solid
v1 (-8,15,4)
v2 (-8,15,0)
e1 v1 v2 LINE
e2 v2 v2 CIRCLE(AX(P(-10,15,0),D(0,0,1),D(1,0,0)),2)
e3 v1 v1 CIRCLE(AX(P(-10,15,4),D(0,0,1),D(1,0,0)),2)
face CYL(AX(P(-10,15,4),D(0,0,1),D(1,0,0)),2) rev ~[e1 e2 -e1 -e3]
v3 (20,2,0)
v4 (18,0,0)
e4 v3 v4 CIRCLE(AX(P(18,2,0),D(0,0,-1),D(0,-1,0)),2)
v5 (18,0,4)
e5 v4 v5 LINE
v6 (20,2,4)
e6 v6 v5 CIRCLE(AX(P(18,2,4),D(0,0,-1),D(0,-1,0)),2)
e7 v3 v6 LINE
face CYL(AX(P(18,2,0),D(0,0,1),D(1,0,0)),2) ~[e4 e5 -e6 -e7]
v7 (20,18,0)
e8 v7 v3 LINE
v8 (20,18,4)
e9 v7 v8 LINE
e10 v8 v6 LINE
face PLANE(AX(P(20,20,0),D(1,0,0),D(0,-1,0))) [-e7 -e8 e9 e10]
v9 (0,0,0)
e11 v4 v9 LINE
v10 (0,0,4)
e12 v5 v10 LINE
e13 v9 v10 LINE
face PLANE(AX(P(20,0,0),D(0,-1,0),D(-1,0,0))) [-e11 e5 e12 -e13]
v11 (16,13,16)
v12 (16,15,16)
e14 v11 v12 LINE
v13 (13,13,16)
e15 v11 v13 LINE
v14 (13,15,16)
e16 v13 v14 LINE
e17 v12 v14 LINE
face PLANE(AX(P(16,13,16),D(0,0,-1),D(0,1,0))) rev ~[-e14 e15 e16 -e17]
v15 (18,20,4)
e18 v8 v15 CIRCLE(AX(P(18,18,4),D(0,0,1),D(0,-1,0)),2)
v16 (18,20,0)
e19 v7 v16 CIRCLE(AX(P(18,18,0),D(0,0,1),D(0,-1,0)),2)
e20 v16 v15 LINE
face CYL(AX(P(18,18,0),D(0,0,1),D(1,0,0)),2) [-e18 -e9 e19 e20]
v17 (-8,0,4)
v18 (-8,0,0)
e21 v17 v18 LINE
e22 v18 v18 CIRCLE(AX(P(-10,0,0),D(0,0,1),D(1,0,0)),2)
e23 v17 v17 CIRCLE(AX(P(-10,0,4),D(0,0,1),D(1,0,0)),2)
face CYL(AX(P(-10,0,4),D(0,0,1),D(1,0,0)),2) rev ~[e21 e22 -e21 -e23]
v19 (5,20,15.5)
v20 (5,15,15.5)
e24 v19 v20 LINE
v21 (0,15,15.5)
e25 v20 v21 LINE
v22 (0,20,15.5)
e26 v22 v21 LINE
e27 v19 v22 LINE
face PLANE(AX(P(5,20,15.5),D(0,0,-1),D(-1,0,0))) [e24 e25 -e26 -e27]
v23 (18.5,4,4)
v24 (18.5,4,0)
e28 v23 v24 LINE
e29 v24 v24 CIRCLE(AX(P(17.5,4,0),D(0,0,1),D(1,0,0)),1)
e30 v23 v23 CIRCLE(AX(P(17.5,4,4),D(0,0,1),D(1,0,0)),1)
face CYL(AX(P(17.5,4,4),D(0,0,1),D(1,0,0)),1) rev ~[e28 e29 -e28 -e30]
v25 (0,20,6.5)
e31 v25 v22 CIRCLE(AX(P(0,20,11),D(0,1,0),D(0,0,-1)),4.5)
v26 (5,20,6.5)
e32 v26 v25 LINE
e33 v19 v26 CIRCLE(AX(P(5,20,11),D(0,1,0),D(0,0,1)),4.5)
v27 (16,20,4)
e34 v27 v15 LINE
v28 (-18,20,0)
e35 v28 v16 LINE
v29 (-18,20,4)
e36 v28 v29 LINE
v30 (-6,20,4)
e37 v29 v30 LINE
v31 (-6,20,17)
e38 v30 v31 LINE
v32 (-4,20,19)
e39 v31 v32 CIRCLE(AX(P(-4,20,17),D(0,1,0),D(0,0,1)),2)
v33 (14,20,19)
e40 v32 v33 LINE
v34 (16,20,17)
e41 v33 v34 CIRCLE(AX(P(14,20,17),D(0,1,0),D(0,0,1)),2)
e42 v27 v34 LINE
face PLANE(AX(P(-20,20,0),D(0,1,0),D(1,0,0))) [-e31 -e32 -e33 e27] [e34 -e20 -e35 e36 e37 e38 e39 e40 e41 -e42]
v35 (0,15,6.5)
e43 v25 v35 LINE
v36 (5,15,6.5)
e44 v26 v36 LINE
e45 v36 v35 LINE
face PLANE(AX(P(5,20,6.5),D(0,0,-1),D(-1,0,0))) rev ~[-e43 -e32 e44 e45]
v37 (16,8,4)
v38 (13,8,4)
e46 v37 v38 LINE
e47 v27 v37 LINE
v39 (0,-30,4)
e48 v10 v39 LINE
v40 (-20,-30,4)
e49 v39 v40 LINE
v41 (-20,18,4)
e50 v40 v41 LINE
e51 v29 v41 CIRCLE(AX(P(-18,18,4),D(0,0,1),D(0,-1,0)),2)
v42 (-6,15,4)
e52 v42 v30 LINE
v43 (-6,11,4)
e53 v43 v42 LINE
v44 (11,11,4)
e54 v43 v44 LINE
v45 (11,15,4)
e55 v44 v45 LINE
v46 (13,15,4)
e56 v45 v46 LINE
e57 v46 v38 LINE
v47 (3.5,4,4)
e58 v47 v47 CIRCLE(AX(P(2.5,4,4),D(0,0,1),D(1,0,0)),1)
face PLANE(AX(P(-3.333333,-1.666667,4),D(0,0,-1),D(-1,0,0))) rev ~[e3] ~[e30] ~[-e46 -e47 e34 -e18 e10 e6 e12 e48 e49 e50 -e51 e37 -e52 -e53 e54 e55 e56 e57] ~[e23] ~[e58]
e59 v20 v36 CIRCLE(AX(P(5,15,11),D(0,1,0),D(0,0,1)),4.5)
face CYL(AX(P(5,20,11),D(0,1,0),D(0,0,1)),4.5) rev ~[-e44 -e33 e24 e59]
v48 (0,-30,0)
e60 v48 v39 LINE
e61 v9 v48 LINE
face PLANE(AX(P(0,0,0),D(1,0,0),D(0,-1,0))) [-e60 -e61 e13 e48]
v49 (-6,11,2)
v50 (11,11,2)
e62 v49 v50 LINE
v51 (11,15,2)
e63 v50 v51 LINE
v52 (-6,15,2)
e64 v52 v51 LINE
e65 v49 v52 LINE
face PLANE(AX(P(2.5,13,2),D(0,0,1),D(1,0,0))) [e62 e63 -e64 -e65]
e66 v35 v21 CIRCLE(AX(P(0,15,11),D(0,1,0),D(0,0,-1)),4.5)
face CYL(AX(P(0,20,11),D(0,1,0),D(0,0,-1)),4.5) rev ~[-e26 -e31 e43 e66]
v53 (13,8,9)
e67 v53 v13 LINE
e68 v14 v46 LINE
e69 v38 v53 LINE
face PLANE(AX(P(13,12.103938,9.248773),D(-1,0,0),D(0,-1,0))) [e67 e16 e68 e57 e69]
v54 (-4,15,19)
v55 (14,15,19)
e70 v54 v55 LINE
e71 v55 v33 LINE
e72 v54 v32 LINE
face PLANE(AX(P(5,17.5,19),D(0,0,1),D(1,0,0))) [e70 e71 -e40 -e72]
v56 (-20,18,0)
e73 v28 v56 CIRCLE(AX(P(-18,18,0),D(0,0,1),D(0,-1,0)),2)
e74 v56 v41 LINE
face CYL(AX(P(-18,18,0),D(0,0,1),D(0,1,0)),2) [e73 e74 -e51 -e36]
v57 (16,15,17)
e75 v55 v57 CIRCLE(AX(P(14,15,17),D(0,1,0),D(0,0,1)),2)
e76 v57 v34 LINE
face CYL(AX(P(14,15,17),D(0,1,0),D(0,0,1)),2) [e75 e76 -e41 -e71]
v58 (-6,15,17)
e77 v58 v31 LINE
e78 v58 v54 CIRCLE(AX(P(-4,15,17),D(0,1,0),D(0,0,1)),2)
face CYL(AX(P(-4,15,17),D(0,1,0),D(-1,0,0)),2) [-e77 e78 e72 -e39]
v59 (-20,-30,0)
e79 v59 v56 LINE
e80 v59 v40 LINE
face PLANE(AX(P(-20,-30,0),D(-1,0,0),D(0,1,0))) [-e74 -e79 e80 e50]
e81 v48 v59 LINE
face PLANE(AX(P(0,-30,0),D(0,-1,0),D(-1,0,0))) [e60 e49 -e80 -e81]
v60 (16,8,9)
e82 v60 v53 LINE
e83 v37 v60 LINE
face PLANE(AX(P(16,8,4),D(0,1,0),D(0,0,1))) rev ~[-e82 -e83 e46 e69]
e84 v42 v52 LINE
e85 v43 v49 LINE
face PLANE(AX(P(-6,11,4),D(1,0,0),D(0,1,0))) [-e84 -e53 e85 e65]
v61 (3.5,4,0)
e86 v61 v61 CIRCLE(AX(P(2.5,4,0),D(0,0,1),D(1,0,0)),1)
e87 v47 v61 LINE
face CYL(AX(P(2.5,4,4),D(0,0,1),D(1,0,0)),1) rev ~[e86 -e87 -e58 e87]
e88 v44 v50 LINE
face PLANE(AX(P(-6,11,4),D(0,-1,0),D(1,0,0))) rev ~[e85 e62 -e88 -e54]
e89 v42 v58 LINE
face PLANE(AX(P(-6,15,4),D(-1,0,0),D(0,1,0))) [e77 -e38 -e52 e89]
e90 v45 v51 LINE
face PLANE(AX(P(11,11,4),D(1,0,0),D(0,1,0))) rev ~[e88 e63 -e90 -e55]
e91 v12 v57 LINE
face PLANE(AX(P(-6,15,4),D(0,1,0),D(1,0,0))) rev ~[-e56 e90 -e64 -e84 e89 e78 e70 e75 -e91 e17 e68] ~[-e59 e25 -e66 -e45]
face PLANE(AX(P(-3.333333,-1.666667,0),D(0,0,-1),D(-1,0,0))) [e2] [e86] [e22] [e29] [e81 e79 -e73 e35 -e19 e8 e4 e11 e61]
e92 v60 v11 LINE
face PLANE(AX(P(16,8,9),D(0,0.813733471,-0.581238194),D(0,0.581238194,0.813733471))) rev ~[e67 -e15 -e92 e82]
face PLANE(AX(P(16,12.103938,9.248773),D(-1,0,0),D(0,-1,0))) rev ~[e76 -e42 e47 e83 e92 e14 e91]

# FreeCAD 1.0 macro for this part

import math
import FreeCAD as App
import Part
import Sketcher
Q = App.Units.Quantity


def edges_at(feature, points):
    """Names of the edges that pass closest to the given points."""
    edges = feature.Shape.Edges
    near = lambda p: min(range(len(edges)), key=lambda i: edges[i].distToShape(Part.Vertex(*p))[0])
    return sorted({f"Edge{near(p) + 1}" for p in points})


def add_polygon(sketch, points):
    """Adds a closed chain of lines whose ends are joined by coincident constraints."""
    first, n = sketch.GeometryCount, len(points)
    for a, b in zip(points, points[1:] + points[:1]):
        sketch.addGeometry(Part.LineSegment(App.Vector(*a, 0), App.Vector(*b, 0)), False)
    for i in range(n):
        sketch.addConstraint(Sketcher.Constraint("Coincident", first + i, 2, first + (i + 1) % n, 1))

doc = App.newDocument("Part")
body = doc.addObject("PartDesign::Body", "Body")

# Sketch on XY plane
sketch1 = doc.addObject("Sketcher::SketchObject", "Sketch")
body.addObject(sketch1)
sketch1.AttachmentSupport = (doc.XY_Plane, [""])
sketch1.MapMode = "FlatFace"
add_polygon(sketch1, [(20, 20), (-20, 20), (-20, -30), (0, -30), (0, 0), (20, 0)])  # lines 0-5
sketch1.addConstraint(Sketcher.Constraint("Horizontal", 0))
sketch1.addConstraint(Sketcher.Constraint("Vertical", 1))
sketch1.addConstraint(Sketcher.Constraint("Horizontal", 2))
sketch1.addConstraint(Sketcher.Constraint("Vertical", 3))
sketch1.addConstraint(Sketcher.Constraint("Horizontal", 4))
sketch1.addConstraint(Sketcher.Constraint("Vertical", 5))
sketch1.addConstraint(Sketcher.Constraint("Coincident", 3, 2, -1, 1))
sketch1.addConstraint(Sketcher.Constraint("Equal", 2, 4))
sketch1.addConstraint(Sketcher.Constraint("Equal", 4, 5))
sketch1.addConstraint(Sketcher.Constraint("DistanceX", 0, 2, 0, 1, Q("40 mm")))
sketch1.addConstraint(Sketcher.Constraint("DistanceY", 1, 2, 1, 1, Q("50 mm")))
pad1 = doc.addObject("PartDesign::Pad", "Pad")
body.addObject(pad1)
pad1.Profile = sketch1
pad1.Length = 4

# Sketch on XY plane
sketch2 = doc.addObject("Sketcher::SketchObject", "Sketch001")
body.addObject(sketch2)
sketch2.AttachmentSupport = (doc.XY_Plane, [""])
sketch2.MapMode = "FlatFace"
sketch2.AttachmentOffset = App.Placement(App.Vector(0, 0, 4), App.Rotation())
sketch2.addGeometry(Part.Circle(App.Vector(-10, 15, 0), App.Vector(0, 0, 1), 2), False)
sketch2.addConstraint(Sketcher.Constraint("Diameter", 0, Q("4 mm")))
sketch2.addConstraint(Sketcher.Constraint("DistanceX", 0, 3, -1, 1, Q("10 mm")))
sketch2.addConstraint(Sketcher.Constraint("DistanceY", -1, 1, 0, 3, Q("15 mm")))
pocket1 = doc.addObject("PartDesign::Pocket", "Pocket")
body.addObject(pocket1)
pocket1.Profile = sketch2
pocket1.Type = "ThroughAll"

# Sketch on XY plane
sketch3 = doc.addObject("Sketcher::SketchObject", "Sketch002")
body.addObject(sketch3)
sketch3.AttachmentSupport = (doc.XY_Plane, [""])
sketch3.MapMode = "FlatFace"
sketch3.AttachmentOffset = App.Placement(App.Vector(0, 0, 4), App.Rotation())
sketch3.addGeometry(Part.Circle(App.Vector(-10, 0, 0), App.Vector(0, 0, 1), 2), False)
sketch3.addConstraint(Sketcher.Constraint("PointOnObject", 0, 3, -1))
sketch3.addConstraint(Sketcher.Constraint("Diameter", 0, Q("4 mm")))
sketch3.addConstraint(Sketcher.Constraint("DistanceX", 0, 3, -1, 1, Q("10 mm")))
pocket2 = doc.addObject("PartDesign::Pocket", "Pocket001")
body.addObject(pocket2)
pocket2.Profile = sketch3
pocket2.Type = "ThroughAll"

# Sketch on XY plane
sketch4 = doc.addObject("Sketcher::SketchObject", "Sketch003")
body.addObject(sketch4)
sketch4.AttachmentSupport = (doc.XY_Plane, [""])
sketch4.MapMode = "FlatFace"
sketch4.AttachmentOffset = App.Placement(App.Vector(0, 0, 4), App.Rotation())
sketch4.addGeometry(Part.Circle(App.Vector(2.5, 4, 0), App.Vector(0, 0, 1), 1), False)
sketch4.addConstraint(Sketcher.Constraint("Diameter", 0, Q("2 mm")))
sketch4.addConstraint(Sketcher.Constraint("DistanceY", -1, 1, 0, 3, Q("4 mm")))
sketch4.addConstraint(Sketcher.Constraint("DistanceX", -1, 1, 0, 3, Q("2.5 mm")))
pocket3 = doc.addObject("PartDesign::Pocket", "Pocket002")
body.addObject(pocket3)
pocket3.Profile = sketch4
pocket3.Type = "ThroughAll"

# Sketch on XY plane
sketch5 = doc.addObject("Sketcher::SketchObject", "Sketch004")
body.addObject(sketch5)
sketch5.AttachmentSupport = (doc.XY_Plane, [""])
sketch5.MapMode = "FlatFace"
sketch5.AttachmentOffset = App.Placement(App.Vector(0, 0, 4), App.Rotation())
sketch5.addGeometry(Part.Circle(App.Vector(17.5, 4, 0), App.Vector(0, 0, 1), 1), False)
sketch5.addConstraint(Sketcher.Constraint("Diameter", 0, Q("2 mm")))
sketch5.addConstraint(Sketcher.Constraint("DistanceY", -1, 1, 0, 3, Q("4 mm")))
sketch5.addConstraint(Sketcher.Constraint("DistanceX", -1, 1, 0, 3, Q("17.5 mm")))
pocket4 = doc.addObject("PartDesign::Pocket", "Pocket003")
body.addObject(pocket4)
pocket4.Profile = sketch5
pocket4.Type = "ThroughAll"

# Sketch on XY plane
sketch6 = doc.addObject("Sketcher::SketchObject", "Sketch005")
body.addObject(sketch6)
sketch6.AttachmentSupport = (doc.XY_Plane, [""])
sketch6.MapMode = "FlatFace"
sketch6.AttachmentOffset = App.Placement(App.Vector(0, 0, 4), App.Rotation())
add_polygon(sketch6, [(-6, 20), (-6, 15), (16, 15), (16, 20)])  # lines 0-3
sketch6.addConstraint(Sketcher.Constraint("Vertical", 0))
sketch6.addConstraint(Sketcher.Constraint("Horizontal", 1))
sketch6.addConstraint(Sketcher.Constraint("Vertical", 2))
sketch6.addConstraint(Sketcher.Constraint("Horizontal", 3))
sketch6.addConstraint(Sketcher.Constraint("DistanceX", 1, 1, 1, 2, Q("22 mm")))
sketch6.addConstraint(Sketcher.Constraint("DistanceY", 0, 2, 0, 1, Q("5 mm")))
sketch6.addConstraint(Sketcher.Constraint("DistanceX", 0, 2, -1, 1, Q("6 mm")))
sketch6.addConstraint(Sketcher.Constraint("DistanceY", -1, 1, 0, 2, Q("15 mm")))
pad2 = doc.addObject("PartDesign::Pad", "Pad001")
body.addObject(pad2)
pad2.Profile = sketch6
pad2.Length = 15

# Sketch on XZ plane
sketch7 = doc.addObject("Sketcher::SketchObject", "Sketch006")
body.addObject(sketch7)
sketch7.AttachmentSupport = (doc.XZ_Plane, [""])
sketch7.MapMode = "FlatFace"
sketch7.AttachmentOffset = App.Placement(App.Vector(0, 0, -20), App.Rotation())
sketch7.addGeometry(Part.ArcOfCircle(Part.Circle(App.Vector(5, 11, 0), App.Vector(0, 0, 1), 4.5), math.radians(-90), math.radians(90)), False)
sketch7.addGeometry(Part.LineSegment(App.Vector(5, 6.5, 0), App.Vector(0, 6.5, 0)), False)
sketch7.addGeometry(Part.ArcOfCircle(Part.Circle(App.Vector(0, 11, 0), App.Vector(0, 0, 1), 4.5), math.radians(90), math.radians(270)), False)
sketch7.addGeometry(Part.LineSegment(App.Vector(0, 15.5, 0), App.Vector(5, 15.5, 0)), False)
sketch7.addConstraint(Sketcher.Constraint("Tangent", 0, 1, 1, 1))
sketch7.addConstraint(Sketcher.Constraint("Tangent", 1, 2, 2, 2))
sketch7.addConstraint(Sketcher.Constraint("Tangent", 2, 1, 3, 1))
sketch7.addConstraint(Sketcher.Constraint("Tangent", 3, 2, 0, 2))
sketch7.addConstraint(Sketcher.Constraint("Horizontal", 1))
sketch7.addConstraint(Sketcher.Constraint("Horizontal", 3))
sketch7.addConstraint(Sketcher.Constraint("PointOnObject", 2, 3, -2))
sketch7.addConstraint(Sketcher.Constraint("Radius", 0, Q("4.5 mm")))
sketch7.addConstraint(Sketcher.Constraint("DistanceX", 1, 2, 1, 1, Q("5 mm")))
sketch7.addConstraint(Sketcher.Constraint("DistanceY", -1, 1, 0, 3, Q("11 mm")))
pocket5 = doc.addObject("PartDesign::Pocket", "Pocket004")
body.addObject(pocket5)
pocket5.Profile = sketch7
pocket5.Type = "ThroughAll"
pocket5.Reversed = True
doc.recompute()

fillet = doc.addObject("PartDesign::Fillet", "Fillet")
body.addObject(fillet)
fillet.Base = (pocket5, edges_at(pocket5, [(20, 0, 2)]))
fillet.Radius = 2
doc.recompute()

fillet2 = doc.addObject("PartDesign::Fillet", "Fillet001")
body.addObject(fillet2)
fillet2.Base = (fillet, edges_at(fillet, [(20, 20, 2)]))
fillet2.Radius = 2
doc.recompute()

fillet3 = doc.addObject("PartDesign::Fillet", "Fillet002")
body.addObject(fillet3)
fillet3.Base = (fillet2, edges_at(fillet2, [(-20, 20, 2)]))
fillet3.Radius = 2
doc.recompute()

fillet4 = doc.addObject("PartDesign::Fillet", "Fillet003")
body.addObject(fillet4)
fillet4.Base = (fillet3, edges_at(fillet3, [(-6, 17.5, 19)]))
fillet4.Radius = 2
doc.recompute()

fillet5 = doc.addObject("PartDesign::Fillet", "Fillet004")
body.addObject(fillet5)
fillet5.Base = (fillet4, edges_at(fillet4, [(16, 17.5, 19)]))
fillet5.Radius = 2

# Sketch on XY plane
sketch8 = doc.addObject("Sketcher::SketchObject", "Sketch007")
body.addObject(sketch8)
sketch8.AttachmentSupport = (doc.XY_Plane, [""])
sketch8.MapMode = "FlatFace"
sketch8.AttachmentOffset = App.Placement(App.Vector(0, 0, 4), App.Rotation())
add_polygon(sketch8, [(-6, 15), (-6, 11), (11, 11), (11, 15)])  # lines 0-3
sketch8.addConstraint(Sketcher.Constraint("Vertical", 0))
sketch8.addConstraint(Sketcher.Constraint("Horizontal", 1))
sketch8.addConstraint(Sketcher.Constraint("Vertical", 2))
sketch8.addConstraint(Sketcher.Constraint("Horizontal", 3))
sketch8.addConstraint(Sketcher.Constraint("DistanceX", 1, 1, 1, 2, Q("17 mm")))
sketch8.addConstraint(Sketcher.Constraint("DistanceY", 0, 2, 0, 1, Q("4 mm")))
sketch8.addConstraint(Sketcher.Constraint("DistanceX", 0, 2, -1, 1, Q("6 mm")))
sketch8.addConstraint(Sketcher.Constraint("DistanceY", -1, 1, 0, 2, Q("11 mm")))
pocket6 = doc.addObject("PartDesign::Pocket", "Pocket005")
body.addObject(pocket6)
pocket6.Profile = sketch8
pocket6.Length = 2

# Sketch on YZ plane
sketch9 = doc.addObject("Sketcher::SketchObject", "Sketch008")
body.addObject(sketch9)
sketch9.AttachmentSupport = (doc.YZ_Plane, [""])
sketch9.MapMode = "FlatFace"
sketch9.AttachmentOffset = App.Placement(App.Vector(0, 0, 16), App.Rotation())
add_polygon(sketch9, [(8, 4), (15, 4), (15, 16), (13, 16), (8, 9)])  # lines 0-4
sketch9.addConstraint(Sketcher.Constraint("Horizontal", 0))
sketch9.addConstraint(Sketcher.Constraint("Vertical", 1))
sketch9.addConstraint(Sketcher.Constraint("Horizontal", 2))
sketch9.addConstraint(Sketcher.Constraint("Vertical", 4))
sketch9.addConstraint(Sketcher.Constraint("DistanceX", 0, 1, 0, 2, Q("7 mm")))
sketch9.addConstraint(Sketcher.Constraint("DistanceX", 2, 2, 2, 1, Q("2 mm")))
sketch9.addConstraint(Sketcher.Constraint("DistanceY", 1, 1, 1, 2, Q("12 mm")))
sketch9.addConstraint(Sketcher.Constraint("DistanceY", 4, 2, 4, 1, Q("5 mm")))
sketch9.addConstraint(Sketcher.Constraint("DistanceX", -1, 1, 0, 2, Q("15 mm")))
sketch9.addConstraint(Sketcher.Constraint("DistanceY", -1, 1, 0, 2, Q("4 mm")))
pad3 = doc.addObject("PartDesign::Pad", "Pad002")
body.addObject(pad3)
pad3.Profile = sketch9
pad3.Length = 3
pad3.Reversed = True

doc.recompute()
